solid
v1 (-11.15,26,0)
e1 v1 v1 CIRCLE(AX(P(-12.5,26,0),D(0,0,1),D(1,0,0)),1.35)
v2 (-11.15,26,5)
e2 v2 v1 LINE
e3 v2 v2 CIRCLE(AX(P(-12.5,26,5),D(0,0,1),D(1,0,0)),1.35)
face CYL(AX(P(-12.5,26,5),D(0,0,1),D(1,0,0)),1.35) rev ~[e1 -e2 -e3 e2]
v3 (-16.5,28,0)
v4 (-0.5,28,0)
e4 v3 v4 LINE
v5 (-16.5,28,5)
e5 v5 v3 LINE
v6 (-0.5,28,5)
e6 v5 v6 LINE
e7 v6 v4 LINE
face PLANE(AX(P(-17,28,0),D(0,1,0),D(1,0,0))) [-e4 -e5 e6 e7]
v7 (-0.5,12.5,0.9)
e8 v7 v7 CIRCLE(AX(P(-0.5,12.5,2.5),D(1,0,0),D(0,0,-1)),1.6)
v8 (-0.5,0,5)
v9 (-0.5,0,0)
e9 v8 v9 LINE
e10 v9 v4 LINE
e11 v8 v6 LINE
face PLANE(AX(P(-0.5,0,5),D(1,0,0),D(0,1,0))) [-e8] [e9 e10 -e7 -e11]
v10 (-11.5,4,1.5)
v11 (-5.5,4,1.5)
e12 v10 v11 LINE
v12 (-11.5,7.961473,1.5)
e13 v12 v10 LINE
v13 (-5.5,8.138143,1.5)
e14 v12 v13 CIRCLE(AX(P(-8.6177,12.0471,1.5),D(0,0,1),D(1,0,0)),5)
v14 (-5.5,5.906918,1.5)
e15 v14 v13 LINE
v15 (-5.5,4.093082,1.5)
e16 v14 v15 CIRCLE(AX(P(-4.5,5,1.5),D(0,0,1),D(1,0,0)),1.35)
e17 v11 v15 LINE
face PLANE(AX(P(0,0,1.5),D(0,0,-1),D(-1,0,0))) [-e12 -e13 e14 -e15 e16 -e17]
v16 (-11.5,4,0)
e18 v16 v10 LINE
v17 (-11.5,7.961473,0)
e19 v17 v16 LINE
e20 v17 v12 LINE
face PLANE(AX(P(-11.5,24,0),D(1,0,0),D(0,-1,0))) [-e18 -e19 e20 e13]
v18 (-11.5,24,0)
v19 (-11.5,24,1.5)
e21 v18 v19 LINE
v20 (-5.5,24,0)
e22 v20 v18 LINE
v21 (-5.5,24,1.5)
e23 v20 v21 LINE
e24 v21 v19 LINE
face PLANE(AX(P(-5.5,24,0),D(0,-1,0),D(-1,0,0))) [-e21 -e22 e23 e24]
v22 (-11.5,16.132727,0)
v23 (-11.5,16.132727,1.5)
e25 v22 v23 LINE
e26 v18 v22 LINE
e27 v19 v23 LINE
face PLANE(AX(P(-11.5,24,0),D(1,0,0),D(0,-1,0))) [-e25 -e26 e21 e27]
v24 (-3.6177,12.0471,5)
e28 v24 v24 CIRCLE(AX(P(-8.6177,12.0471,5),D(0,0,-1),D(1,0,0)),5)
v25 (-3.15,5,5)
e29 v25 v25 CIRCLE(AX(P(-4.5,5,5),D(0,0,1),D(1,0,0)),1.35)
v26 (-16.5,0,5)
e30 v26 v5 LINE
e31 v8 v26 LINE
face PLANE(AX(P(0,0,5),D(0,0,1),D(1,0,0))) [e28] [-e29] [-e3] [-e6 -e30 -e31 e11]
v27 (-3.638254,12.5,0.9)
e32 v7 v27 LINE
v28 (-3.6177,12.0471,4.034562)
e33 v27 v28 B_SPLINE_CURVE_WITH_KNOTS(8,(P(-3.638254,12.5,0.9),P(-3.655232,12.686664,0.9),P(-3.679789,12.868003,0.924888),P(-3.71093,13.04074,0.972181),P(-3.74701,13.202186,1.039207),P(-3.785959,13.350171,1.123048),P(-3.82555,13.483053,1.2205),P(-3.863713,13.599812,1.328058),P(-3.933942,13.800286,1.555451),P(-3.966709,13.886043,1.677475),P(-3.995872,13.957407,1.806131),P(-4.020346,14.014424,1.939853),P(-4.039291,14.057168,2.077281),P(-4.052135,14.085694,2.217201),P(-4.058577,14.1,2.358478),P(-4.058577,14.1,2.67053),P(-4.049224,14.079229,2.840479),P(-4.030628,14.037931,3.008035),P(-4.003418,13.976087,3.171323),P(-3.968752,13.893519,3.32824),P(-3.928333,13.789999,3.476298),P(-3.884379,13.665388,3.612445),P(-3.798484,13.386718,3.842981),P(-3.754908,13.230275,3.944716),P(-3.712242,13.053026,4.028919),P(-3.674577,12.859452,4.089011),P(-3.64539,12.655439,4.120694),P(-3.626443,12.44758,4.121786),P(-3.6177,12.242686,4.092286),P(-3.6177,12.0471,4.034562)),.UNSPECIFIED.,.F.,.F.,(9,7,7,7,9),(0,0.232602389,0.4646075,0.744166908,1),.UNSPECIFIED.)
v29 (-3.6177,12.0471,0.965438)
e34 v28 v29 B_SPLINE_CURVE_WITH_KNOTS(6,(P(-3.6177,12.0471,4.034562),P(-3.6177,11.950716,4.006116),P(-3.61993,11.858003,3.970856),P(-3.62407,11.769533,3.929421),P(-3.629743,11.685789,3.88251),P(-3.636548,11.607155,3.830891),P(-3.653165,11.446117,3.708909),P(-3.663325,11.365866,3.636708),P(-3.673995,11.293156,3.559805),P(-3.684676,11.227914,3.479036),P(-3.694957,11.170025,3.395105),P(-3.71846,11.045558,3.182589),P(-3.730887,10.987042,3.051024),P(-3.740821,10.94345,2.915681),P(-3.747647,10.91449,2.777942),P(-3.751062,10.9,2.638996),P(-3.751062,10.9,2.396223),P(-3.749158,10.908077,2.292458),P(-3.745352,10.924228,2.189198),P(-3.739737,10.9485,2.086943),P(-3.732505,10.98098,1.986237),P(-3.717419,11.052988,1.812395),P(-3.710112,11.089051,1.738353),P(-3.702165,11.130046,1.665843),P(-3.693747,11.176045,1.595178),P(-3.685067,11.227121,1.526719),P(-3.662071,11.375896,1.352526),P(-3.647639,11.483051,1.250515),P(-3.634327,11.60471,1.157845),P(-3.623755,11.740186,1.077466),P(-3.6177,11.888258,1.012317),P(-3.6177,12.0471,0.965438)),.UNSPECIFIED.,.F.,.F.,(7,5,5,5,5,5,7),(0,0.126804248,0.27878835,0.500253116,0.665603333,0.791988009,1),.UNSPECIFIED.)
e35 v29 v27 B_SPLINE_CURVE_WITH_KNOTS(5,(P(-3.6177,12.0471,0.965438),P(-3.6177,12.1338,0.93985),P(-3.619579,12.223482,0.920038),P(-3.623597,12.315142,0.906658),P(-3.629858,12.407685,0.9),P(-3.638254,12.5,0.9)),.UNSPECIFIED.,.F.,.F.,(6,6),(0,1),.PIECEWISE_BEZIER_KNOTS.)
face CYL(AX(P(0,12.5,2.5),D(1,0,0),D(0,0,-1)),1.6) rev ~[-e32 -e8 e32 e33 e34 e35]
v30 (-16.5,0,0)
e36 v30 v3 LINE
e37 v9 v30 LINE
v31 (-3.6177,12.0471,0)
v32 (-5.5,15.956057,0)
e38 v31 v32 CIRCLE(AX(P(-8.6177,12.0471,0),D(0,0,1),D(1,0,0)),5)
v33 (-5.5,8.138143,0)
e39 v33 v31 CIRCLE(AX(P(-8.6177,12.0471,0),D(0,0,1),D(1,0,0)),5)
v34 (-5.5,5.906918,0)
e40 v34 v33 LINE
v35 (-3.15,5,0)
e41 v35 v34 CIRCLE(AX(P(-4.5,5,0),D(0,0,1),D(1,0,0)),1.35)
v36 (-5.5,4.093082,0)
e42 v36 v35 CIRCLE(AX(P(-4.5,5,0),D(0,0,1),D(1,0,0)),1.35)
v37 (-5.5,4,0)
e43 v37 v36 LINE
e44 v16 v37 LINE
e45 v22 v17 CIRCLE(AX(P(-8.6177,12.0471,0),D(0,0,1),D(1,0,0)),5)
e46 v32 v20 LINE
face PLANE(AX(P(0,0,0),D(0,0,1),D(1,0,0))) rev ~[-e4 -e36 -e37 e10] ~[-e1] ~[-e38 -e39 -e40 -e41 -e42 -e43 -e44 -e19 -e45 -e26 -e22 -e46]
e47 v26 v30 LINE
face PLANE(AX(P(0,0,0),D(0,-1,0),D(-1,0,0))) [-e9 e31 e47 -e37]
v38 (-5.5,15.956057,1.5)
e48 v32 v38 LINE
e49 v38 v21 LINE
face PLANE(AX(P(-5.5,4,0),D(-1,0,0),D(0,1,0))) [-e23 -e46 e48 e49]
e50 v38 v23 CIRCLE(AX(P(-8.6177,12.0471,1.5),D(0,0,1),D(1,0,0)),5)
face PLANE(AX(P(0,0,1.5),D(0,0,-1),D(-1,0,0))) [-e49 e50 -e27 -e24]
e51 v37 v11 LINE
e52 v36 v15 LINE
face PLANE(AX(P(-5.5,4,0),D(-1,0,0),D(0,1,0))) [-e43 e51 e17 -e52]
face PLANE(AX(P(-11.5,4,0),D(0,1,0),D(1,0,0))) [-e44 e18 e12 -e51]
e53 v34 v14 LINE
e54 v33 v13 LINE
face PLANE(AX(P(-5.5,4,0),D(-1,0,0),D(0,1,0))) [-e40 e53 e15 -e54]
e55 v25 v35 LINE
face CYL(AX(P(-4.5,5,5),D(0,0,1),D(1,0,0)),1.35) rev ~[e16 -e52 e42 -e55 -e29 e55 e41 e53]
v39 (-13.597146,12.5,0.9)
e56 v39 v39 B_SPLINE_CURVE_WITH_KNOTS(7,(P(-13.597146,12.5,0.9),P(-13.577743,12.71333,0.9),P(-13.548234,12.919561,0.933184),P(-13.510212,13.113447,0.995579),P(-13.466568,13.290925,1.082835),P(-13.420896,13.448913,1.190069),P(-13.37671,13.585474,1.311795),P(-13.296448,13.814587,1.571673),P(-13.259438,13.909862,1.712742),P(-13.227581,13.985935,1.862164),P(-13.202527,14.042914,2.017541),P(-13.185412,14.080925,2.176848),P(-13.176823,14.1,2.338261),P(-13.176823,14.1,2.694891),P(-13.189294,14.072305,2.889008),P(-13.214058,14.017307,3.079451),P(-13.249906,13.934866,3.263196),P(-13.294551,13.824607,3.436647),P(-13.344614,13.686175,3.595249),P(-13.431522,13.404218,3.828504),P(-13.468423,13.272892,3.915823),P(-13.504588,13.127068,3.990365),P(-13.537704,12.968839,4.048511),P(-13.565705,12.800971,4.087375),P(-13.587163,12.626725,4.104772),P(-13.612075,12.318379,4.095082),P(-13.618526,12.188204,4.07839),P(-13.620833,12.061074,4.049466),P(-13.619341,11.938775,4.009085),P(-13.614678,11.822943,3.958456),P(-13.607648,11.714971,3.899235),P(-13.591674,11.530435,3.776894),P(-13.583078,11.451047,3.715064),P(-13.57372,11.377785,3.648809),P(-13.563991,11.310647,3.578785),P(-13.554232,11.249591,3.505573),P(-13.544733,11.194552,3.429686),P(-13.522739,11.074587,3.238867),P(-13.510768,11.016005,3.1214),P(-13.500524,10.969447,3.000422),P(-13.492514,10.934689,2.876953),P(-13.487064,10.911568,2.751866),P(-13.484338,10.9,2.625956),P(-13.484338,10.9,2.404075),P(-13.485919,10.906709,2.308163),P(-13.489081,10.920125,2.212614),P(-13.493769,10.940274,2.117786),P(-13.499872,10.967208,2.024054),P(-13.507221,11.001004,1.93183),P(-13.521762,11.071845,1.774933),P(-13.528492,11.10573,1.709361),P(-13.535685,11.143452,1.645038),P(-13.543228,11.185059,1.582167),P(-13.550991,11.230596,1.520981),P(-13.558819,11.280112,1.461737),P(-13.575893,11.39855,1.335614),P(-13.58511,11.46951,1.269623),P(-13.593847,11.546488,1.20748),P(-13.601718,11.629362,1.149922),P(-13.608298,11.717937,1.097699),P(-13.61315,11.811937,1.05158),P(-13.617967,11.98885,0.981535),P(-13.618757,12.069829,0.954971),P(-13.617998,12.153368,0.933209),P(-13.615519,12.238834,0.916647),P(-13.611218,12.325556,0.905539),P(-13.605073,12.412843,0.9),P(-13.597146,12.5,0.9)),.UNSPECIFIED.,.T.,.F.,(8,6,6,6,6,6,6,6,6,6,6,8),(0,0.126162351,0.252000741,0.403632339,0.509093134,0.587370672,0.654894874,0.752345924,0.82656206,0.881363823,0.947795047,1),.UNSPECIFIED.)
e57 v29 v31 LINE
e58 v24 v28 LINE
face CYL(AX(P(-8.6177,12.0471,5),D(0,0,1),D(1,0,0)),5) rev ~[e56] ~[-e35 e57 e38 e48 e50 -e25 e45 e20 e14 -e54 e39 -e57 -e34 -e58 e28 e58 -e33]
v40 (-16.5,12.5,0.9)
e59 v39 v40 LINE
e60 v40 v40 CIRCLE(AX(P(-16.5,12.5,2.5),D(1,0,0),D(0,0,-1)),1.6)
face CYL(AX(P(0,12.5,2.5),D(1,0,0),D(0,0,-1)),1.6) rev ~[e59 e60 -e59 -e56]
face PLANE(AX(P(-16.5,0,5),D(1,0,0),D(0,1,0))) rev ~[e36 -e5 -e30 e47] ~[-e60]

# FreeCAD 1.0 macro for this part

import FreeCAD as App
import Part
import Sketcher

V = App.Vector


def add_polygon(sketch, points):
    """Adds a closed chain of lines whose ends are joined by coincident constraints."""
    first, n = sketch.GeometryCount, len(points)
    for a, b in zip(points, points[1:] + points[:1]):
        sketch.addGeometry(Part.LineSegment(App.Vector(*a, 0), App.Vector(*b, 0)), False)
    for i in range(n):
        sketch.addConstraint(Sketcher.Constraint("Coincident", first + i, 2, first + (i + 1) % n, 1))

doc = App.newDocument("Part")
params = doc.addObject("Spreadsheet::Sheet", "Params")
for row, (alias, value) in enumerate([
    ("sketch1_width", "17 mm"),
    ("sketch1_height", "28 mm"),
    ("pad1_length", "5 mm"),
    ("sketch2_width", "6 mm"),
    ("sketch2_height", "20 mm"),
    ("pocket1_length", "1.5 mm"),
    ("sketch3_diameter", "10 mm"),
    ("sketch4_diameter", "2.7 mm"),
    ("sketch5_diameter", "2.7 mm"),
    ("sketch6_diameter", "3.2 mm"),
    ("sketch7_width", "0.5 mm"),
    ("sketch7_height", "28 mm"),
], start=1):
    params.set(f"A{row}", alias)
    params.set(f"B{row}", "=" + value)
    params.setAlias(f"B{row}", alias)

body = doc.addObject("PartDesign::Body", "Body")

# Sketch on XY plane
sketch1 = body.newObject("Sketcher::SketchObject", "Sketch")
sketch1.AttachmentSupport = (doc.getObject("XY_Plane"), [""])
sketch1.MapMode = "FlatFace"
add_polygon(sketch1, [(0, 28), (-17, 28), (-17, 0), (0, 0)])  # lines 0-3
sketch1.addConstraint([
    Sketcher.Constraint("Horizontal", 0),
    Sketcher.Constraint("Vertical", 1),
    Sketcher.Constraint("Horizontal", 2),
    Sketcher.Constraint("Vertical", 3),
    Sketcher.Constraint("Coincident", 2, 2, -1, 1),
    Sketcher.Constraint("DistanceX", 0, 2, 0, 1, 17.0),
    Sketcher.Constraint("DistanceY", 1, 2, 1, 1, 28.0),
])
sketch1.setExpression("Constraints[9]", "Params.sketch1_width")
sketch1.setExpression("Constraints[10]", "Params.sketch1_height")
pad1 = body.newObject("PartDesign::Pad", "Pad")
pad1.Profile = sketch1
pad1.setExpression("Length", "Params.pad1_length")

# Sketch on XY plane
sketch2 = body.newObject("Sketcher::SketchObject", "Sketch001")
sketch2.AttachmentSupport = (doc.getObject("XY_Plane"), [""])
sketch2.MapMode = "FlatFace"
add_polygon(sketch2, [(-12, 4), (-12, 24), (-6, 24), (-6, 4)])  # lines 0-3
sketch2.addConstraint([
    Sketcher.Constraint("Vertical", 0),
    Sketcher.Constraint("Horizontal", 1),
    Sketcher.Constraint("Vertical", 2),
    Sketcher.Constraint("Horizontal", 3),
    Sketcher.Constraint("DistanceX", 1, 1, 1, 2, 6.0),
    Sketcher.Constraint("DistanceY", 0, 1, 0, 2, 20.0),
    Sketcher.Constraint("DistanceY", -1, 1, 2, 2, 4.0),
    Sketcher.Constraint("DistanceX", 1, 2, -1, 1, 5.5),
])
sketch2.setExpression("Constraints[8]", "Params.sketch2_width")
sketch2.setExpression("Constraints[9]", "Params.sketch2_height")
pocket1 = body.newObject("PartDesign::Pocket", "Pocket")
pocket1.Profile = sketch2
pocket1.setExpression("Length", "Params.pocket1_length")
pocket1.Reversed = True

# Sketch on XY plane
sketch3 = body.newObject("Sketcher::SketchObject", "Sketch002")
sketch3.AttachmentSupport = (doc.getObject("XY_Plane"), [""])
sketch3.MapMode = "FlatFace"
sketch3.AttachmentOffset = App.Placement(V(0, 0, 5), App.Rotation())
sketch3.addGeometry(Part.Circle(V(-9, 12, 0), V(0, 0, 1), 5), False)
sketch3.addConstraint([
    Sketcher.Constraint("Diameter", 0, 10.0),
    Sketcher.Constraint("DistanceY", -1, 1, 0, 3, 12.047),
    Sketcher.Constraint("DistanceX", 0, 3, -1, 1, 8.6177),
])
sketch3.setExpression("Constraints[0]", "Params.sketch3_diameter")
pocket2 = body.newObject("PartDesign::Pocket", "Pocket001")
pocket2.Profile = sketch3
pocket2.Type = "ThroughAll"

# Sketch on XY plane
sketch4 = body.newObject("Sketcher::SketchObject", "Sketch003")
sketch4.AttachmentSupport = (doc.getObject("XY_Plane"), [""])
sketch4.MapMode = "FlatFace"
sketch4.AttachmentOffset = App.Placement(V(0, 0, 5), App.Rotation())
sketch4.addGeometry(Part.Circle(V(-12.5, 26, 0), V(0, 0, 1), 1.4), False)
sketch4.addConstraint([
    Sketcher.Constraint("Diameter", 0, 2.7),
    Sketcher.Constraint("DistanceY", -1, 1, 0, 3, 26.0),
    Sketcher.Constraint("DistanceX", 0, 3, -1, 1, 12.5),
])
sketch4.setExpression("Constraints[0]", "Params.sketch4_diameter")
pocket3 = body.newObject("PartDesign::Pocket", "Pocket002")
pocket3.Profile = sketch4
pocket3.Type = "ThroughAll"

# Sketch on XY plane
sketch5 = body.newObject("Sketcher::SketchObject", "Sketch004")
sketch5.AttachmentSupport = (doc.getObject("XY_Plane"), [""])
sketch5.MapMode = "FlatFace"
sketch5.AttachmentOffset = App.Placement(V(0, 0, 5), App.Rotation())
sketch5.addGeometry(Part.Circle(V(-4.5, 5, 0), V(0, 0, 1), 1.4), False)
sketch5.addConstraint([
    Sketcher.Constraint("Diameter", 0, 2.7),
    Sketcher.Constraint("DistanceY", -1, 1, 0, 3, 5.0),
    Sketcher.Constraint("DistanceX", 0, 3, -1, 1, 4.5),
])
sketch5.setExpression("Constraints[0]", "Params.sketch5_diameter")
pocket4 = body.newObject("PartDesign::Pocket", "Pocket003")
pocket4.Profile = sketch5
pocket4.Type = "ThroughAll"

# Sketch on YZ plane
sketch6 = body.newObject("Sketcher::SketchObject", "Sketch005")
sketch6.AttachmentSupport = (doc.getObject("YZ_Plane"), [""])
sketch6.MapMode = "FlatFace"
sketch6.addGeometry(Part.Circle(V(12.5, 2.5, 0), V(0, 0, 1), 1.6), False)
sketch6.addConstraint([
    Sketcher.Constraint("Diameter", 0, 3.2),
    Sketcher.Constraint("DistanceX", -1, 1, 0, 3, 12.5),
    Sketcher.Constraint("DistanceY", -1, 1, 0, 3, 2.5),
])
sketch6.setExpression("Constraints[0]", "Params.sketch6_diameter")
pocket5 = body.newObject("PartDesign::Pocket", "Pocket004")
pocket5.Profile = sketch6
pocket5.Type = "ThroughAll"

# Sketch on XY plane
sketch7 = body.newObject("Sketcher::SketchObject", "Sketch006")
sketch7.AttachmentSupport = (doc.getObject("XY_Plane"), [""])
sketch7.MapMode = "FlatFace"
sketch7.AttachmentOffset = App.Placement(V(0, 0, 5), App.Rotation())
add_polygon(sketch7, [(0, 0), (0, 28), (-0.5, 28), (-0.5, 0)])  # lines 0-3
add_polygon(sketch7, [(-16.5, 0), (-16.5, 28), (-17, 28), (-17, 0)])  # lines 4-7
sketch7.addConstraint([
    Sketcher.Constraint("Vertical", 0),
    Sketcher.Constraint("Horizontal", 1),
    Sketcher.Constraint("Vertical", 2),
    Sketcher.Constraint("Horizontal", 3),
    Sketcher.Constraint("Vertical", 4),
    Sketcher.Constraint("Horizontal", 5),
    Sketcher.Constraint("Vertical", 6),
    Sketcher.Constraint("Horizontal", 7),
    Sketcher.Constraint("Coincident", 3, 2, -1, 1),
    Sketcher.Constraint("PointOnObject", 6, 2, -1),
    Sketcher.Constraint("Horizontal", 1, 2, 4, 2),
    Sketcher.Constraint("Equal", 3, 5),
    Sketcher.Constraint("DistanceX", 1, 2, 1, 1, 0.5),
    Sketcher.Constraint("DistanceY", 0, 1, 0, 2, 28.0),
    Sketcher.Constraint("DistanceX", 5, 2, -1, 1, 17.0),
])
sketch7.setExpression("Constraints[20]", "Params.sketch7_width")
sketch7.setExpression("Constraints[21]", "Params.sketch7_height")
pocket6 = body.newObject("PartDesign::Pocket", "Pocket005")
pocket6.Profile = sketch7
pocket6.Type = "ThroughAll"

doc.recompute()
